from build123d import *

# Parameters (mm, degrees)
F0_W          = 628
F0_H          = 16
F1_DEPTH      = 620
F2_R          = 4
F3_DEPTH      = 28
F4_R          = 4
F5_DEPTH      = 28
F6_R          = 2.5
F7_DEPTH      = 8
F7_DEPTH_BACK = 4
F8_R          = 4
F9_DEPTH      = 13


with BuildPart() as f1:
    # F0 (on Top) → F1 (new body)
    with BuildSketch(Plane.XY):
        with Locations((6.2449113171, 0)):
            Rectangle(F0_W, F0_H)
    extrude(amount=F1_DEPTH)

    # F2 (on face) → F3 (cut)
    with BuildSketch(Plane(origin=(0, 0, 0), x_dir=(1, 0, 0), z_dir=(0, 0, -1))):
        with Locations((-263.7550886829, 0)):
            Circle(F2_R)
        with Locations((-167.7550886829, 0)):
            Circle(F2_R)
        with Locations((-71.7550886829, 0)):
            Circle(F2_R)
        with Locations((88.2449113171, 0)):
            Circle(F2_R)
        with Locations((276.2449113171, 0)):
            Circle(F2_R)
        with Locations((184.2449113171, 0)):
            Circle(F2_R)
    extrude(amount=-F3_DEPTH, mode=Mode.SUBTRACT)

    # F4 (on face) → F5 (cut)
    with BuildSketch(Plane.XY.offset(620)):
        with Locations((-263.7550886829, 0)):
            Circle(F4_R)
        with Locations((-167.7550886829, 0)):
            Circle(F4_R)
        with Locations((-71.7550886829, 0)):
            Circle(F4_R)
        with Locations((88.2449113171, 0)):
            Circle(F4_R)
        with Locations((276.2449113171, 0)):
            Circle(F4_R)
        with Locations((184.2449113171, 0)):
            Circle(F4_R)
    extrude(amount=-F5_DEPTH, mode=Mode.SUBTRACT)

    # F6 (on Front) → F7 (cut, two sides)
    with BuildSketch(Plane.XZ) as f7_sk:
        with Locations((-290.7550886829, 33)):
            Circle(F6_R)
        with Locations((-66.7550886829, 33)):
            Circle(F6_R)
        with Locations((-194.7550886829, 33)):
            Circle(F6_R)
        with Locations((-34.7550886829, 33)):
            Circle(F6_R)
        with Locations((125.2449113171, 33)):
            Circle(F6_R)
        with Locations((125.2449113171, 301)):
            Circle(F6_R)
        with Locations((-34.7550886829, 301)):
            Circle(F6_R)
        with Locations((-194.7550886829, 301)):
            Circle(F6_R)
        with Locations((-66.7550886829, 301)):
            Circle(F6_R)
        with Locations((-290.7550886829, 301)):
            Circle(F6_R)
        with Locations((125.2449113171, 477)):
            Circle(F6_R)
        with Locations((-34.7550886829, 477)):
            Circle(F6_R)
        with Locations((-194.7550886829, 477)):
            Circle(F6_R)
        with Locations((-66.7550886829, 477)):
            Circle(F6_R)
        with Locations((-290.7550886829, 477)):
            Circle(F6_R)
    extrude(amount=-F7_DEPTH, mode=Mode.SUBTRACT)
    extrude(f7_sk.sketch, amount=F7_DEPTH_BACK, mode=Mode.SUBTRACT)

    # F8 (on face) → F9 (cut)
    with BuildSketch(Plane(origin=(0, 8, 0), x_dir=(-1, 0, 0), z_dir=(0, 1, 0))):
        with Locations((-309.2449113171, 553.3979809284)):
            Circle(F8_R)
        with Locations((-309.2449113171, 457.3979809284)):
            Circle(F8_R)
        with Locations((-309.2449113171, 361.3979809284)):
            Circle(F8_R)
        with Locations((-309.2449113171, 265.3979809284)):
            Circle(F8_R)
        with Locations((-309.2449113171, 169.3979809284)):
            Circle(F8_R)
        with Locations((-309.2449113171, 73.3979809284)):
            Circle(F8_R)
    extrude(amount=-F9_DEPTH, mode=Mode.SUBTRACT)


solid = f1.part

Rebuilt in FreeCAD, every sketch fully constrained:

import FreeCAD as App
import Part
import Sketcher

V = App.Vector
Q = App.Units.Quantity


def add_polygon(sketch, points):
    """Adds a closed chain of lines whose ends are joined by coincident constraints."""
    first, n = sketch.GeometryCount, len(points)
    for a, b in zip(points, points[1:] + points[:1]):
        sketch.addGeometry(Part.LineSegment(App.Vector(*a, 0), App.Vector(*b, 0)), False)
    for i in range(n):
        sketch.addConstraint(Sketcher.Constraint("Coincident", first + i, 2, first + (i + 1) % n, 1))

doc = App.newDocument("Part")
params = doc.addObject("Spreadsheet::Sheet", "Params")
for row, (alias, value) in enumerate([
    ("sketch1_width", "628 mm"),
    ("sketch1_height", "16 mm"),
    ("pad1_length", "620 mm"),
    ("sketch2_diameter", "8 mm"),
    ("pocket1_length", "28 mm"),
    ("sketch3_diameter", "8 mm"),
    ("pocket2_length", "28 mm"),
    ("sketch4_diameter", "5 mm"),
    ("pocket3_length", "8 mm"),
    ("pocket3_length2", "4 mm"),
    ("sketch5_diameter", "8 mm"),
    ("pocket4_length", "13 mm"),
], start=1):
    params.set(f"A{row}", alias)
    params.set(f"B{row}", "=" + value)
    params.setAlias(f"B{row}", alias)

body = doc.addObject("PartDesign::Body", "Body")

# Sketch on XY plane
sketch1 = body.newObject("Sketcher::SketchObject", "Sketch")
sketch1.AttachmentSupport = (doc.getObject("XY_Plane"), [""])
sketch1.MapMode = "FlatFace"
add_polygon(sketch1, [(-307.755089, 8), (-307.755089, -8), (320.244911, -8), (320.244911, 8)])  # lines 0-3
sketch1.addConstraint([
    Sketcher.Constraint("Vertical", 0),
    Sketcher.Constraint("Horizontal", 1),
    Sketcher.Constraint("Vertical", 2),
    Sketcher.Constraint("Horizontal", 3),
    Sketcher.Constraint("DistanceX", 1, 1, 1, 2, Q("628 mm")),
    Sketcher.Constraint("DistanceY", 0, 2, 0, 1, Q("16 mm")),
    Sketcher.Constraint("DistanceY", 0, 2, -1, 1, Q("8 mm")),
    Sketcher.Constraint("DistanceX", 0, 2, -1, 1, Q("307.755089 mm")),
])
sketch1.setExpression("Constraints[8]", "Params.sketch1_width")
sketch1.setExpression("Constraints[9]", "Params.sketch1_height")
pad1 = body.newObject("PartDesign::Pad", "Pad")
pad1.Profile = sketch1
pad1.setExpression("Length", "Params.pad1_length")

# Sketch on XY plane
sketch2 = body.newObject("Sketcher::SketchObject", "Sketch001")
sketch2.AttachmentSupport = (doc.getObject("XY_Plane"), [""])
sketch2.MapMode = "FlatFace"
sketch2.addGeometry([
    Part.Circle(V(-263.755089, 0, 0), V(0, 0, 1), 4),  # 0
    Part.Circle(V(-167.755089, 0, 0), V(0, 0, 1), 4),  # 1
    Part.Circle(V(-71.755089, 0, 0), V(0, 0, 1), 4),  # 2
    Part.Circle(V(88.244911, 0, 0), V(0, 0, 1), 4),  # 3
    Part.Circle(V(276.244911, 0, 0), V(0, 0, 1), 4),  # 4
    Part.Circle(V(184.244911, 0, 0), V(0, 0, 1), 4),  # 5
], False)
sketch2.addConstraint([
    Sketcher.Constraint("Equal", 0, 1),
    Sketcher.Constraint("Equal", 1, 2),
    Sketcher.Constraint("Equal", 2, 3),
    Sketcher.Constraint("Equal", 3, 4),
    Sketcher.Constraint("Equal", 4, 5),
    Sketcher.Constraint("PointOnObject", 0, 3, -1),
    Sketcher.Constraint("PointOnObject", 1, 3, -1),
    Sketcher.Constraint("PointOnObject", 2, 3, -1),
    Sketcher.Constraint("PointOnObject", 3, 3, -1),
    Sketcher.Constraint("PointOnObject", 4, 3, -1),
    Sketcher.Constraint("PointOnObject", 5, 3, -1),
    Sketcher.Constraint("Diameter", 0, Q("8 mm")),
    Sketcher.Constraint("DistanceX", 0, 3, 1, 3, Q("96 mm")),
    Sketcher.Constraint("DistanceX", 1, 3, 2, 3, Q("96 mm")),
    Sketcher.Constraint("DistanceX", 2, 3, 3, 3, Q("160 mm")),
    Sketcher.Constraint("DistanceX", 3, 3, 4, 3, Q("188 mm")),
    Sketcher.Constraint("DistanceX", 5, 3, 4, 3, Q("92 mm")),
    Sketcher.Constraint("DistanceX", 0, 3, -1, 1, Q("263.755089 mm")),
])
sketch2.setExpression("Constraints[11]", "Params.sketch2_diameter")
pocket1 = body.newObject("PartDesign::Pocket", "Pocket")
pocket1.Profile = sketch2
pocket1.setExpression("Length", "Params.pocket1_length")
pocket1.Reversed = True

# Sketch on XY plane
sketch3 = body.newObject("Sketcher::SketchObject", "Sketch002")
sketch3.AttachmentSupport = (doc.getObject("XY_Plane"), [""])
sketch3.MapMode = "FlatFace"
sketch3.AttachmentOffset = App.Placement(V(0, 0, 620), App.Rotation())
sketch3.addGeometry([
    Part.Circle(V(-263.755089, 0, 0), V(0, 0, 1), 4),  # 0
    Part.Circle(V(-167.755089, 0, 0), V(0, 0, 1), 4),  # 1
    Part.Circle(V(-71.755089, 0, 0), V(0, 0, 1), 4),  # 2
    Part.Circle(V(88.244911, 0, 0), V(0, 0, 1), 4),  # 3
    Part.Circle(V(276.244911, 0, 0), V(0, 0, 1), 4),  # 4
    Part.Circle(V(184.244911, 0, 0), V(0, 0, 1), 4),  # 5
], False)
sketch3.addConstraint([
    Sketcher.Constraint("Equal", 0, 1),
    Sketcher.Constraint("Equal", 1, 2),
    Sketcher.Constraint("Equal", 2, 3),
    Sketcher.Constraint("Equal", 3, 4),
    Sketcher.Constraint("Equal", 4, 5),
    Sketcher.Constraint("PointOnObject", 0, 3, -1),
    Sketcher.Constraint("PointOnObject", 1, 3, -1),
    Sketcher.Constraint("PointOnObject", 2, 3, -1),
    Sketcher.Constraint("PointOnObject", 3, 3, -1),
    Sketcher.Constraint("PointOnObject", 4, 3, -1),
    Sketcher.Constraint("PointOnObject", 5, 3, -1),
    Sketcher.Constraint("Diameter", 0, Q("8 mm")),
    Sketcher.Constraint("DistanceX", 0, 3, 1, 3, Q("96 mm")),
    Sketcher.Constraint("DistanceX", 1, 3, 2, 3, Q("96 mm")),
    Sketcher.Constraint("DistanceX", 2, 3, 3, 3, Q("160 mm")),
    Sketcher.Constraint("DistanceX", 3, 3, 4, 3, Q("188 mm")),
    Sketcher.Constraint("DistanceX", 5, 3, 4, 3, Q("92 mm")),
    Sketcher.Constraint("DistanceX", 0, 3, -1, 1, Q("263.755089 mm")),
])
sketch3.setExpression("Constraints[11]", "Params.sketch3_diameter")
pocket2 = body.newObject("PartDesign::Pocket", "Pocket001")
pocket2.Profile = sketch3
pocket2.setExpression("Length", "Params.pocket2_length")

# Sketch on XZ plane
sketch4 = body.newObject("Sketcher::SketchObject", "Sketch003")
sketch4.AttachmentSupport = (doc.getObject("XZ_Plane"), [""])
sketch4.MapMode = "FlatFace"
sketch4.addGeometry([
    Part.Circle(V(-290.755089, 33, 0), V(0, 0, 1), 2.5),  # 0
    Part.Circle(V(-66.755089, 33, 0), V(0, 0, 1), 2.5),  # 1
    Part.Circle(V(-194.755089, 33, 0), V(0, 0, 1), 2.5),  # 2
    Part.Circle(V(-34.755089, 33, 0), V(0, 0, 1), 2.5),  # 3
    Part.Circle(V(125.244911, 33, 0), V(0, 0, 1), 2.5),  # 4
    Part.Circle(V(125.244911, 301, 0), V(0, 0, 1), 2.5),  # 5
    Part.Circle(V(-34.755089, 301, 0), V(0, 0, 1), 2.5),  # 6
    Part.Circle(V(-194.755089, 301, 0), V(0, 0, 1), 2.5),  # 7
    Part.Circle(V(-66.755089, 301, 0), V(0, 0, 1), 2.5),  # 8
    Part.Circle(V(-290.755089, 301, 0), V(0, 0, 1), 2.5),  # 9
    Part.Circle(V(125.244911, 477, 0), V(0, 0, 1), 2.5),  # 10
    Part.Circle(V(-34.755089, 477, 0), V(0, 0, 1), 2.5),  # 11
    Part.Circle(V(-194.755089, 477, 0), V(0, 0, 1), 2.5),  # 12
    Part.Circle(V(-66.755089, 477, 0), V(0, 0, 1), 2.5),  # 13
    Part.Circle(V(-290.755089, 477, 0), V(0, 0, 1), 2.5),  # 14
], False)
sketch4.addConstraint([
    Sketcher.Constraint("Equal", 0, 1),
    Sketcher.Constraint("Equal", 1, 2),
    Sketcher.Constraint("Equal", 2, 3),
    Sketcher.Constraint("Equal", 3, 4),
    Sketcher.Constraint("Equal", 4, 5),
    Sketcher.Constraint("Equal", 5, 6),
    Sketcher.Constraint("Equal", 6, 7),
    Sketcher.Constraint("Equal", 7, 8),
    Sketcher.Constraint("Equal", 8, 9),
    Sketcher.Constraint("Equal", 9, 10),
    Sketcher.Constraint("Equal", 10, 11),
    Sketcher.Constraint("Equal", 11, 12),
    Sketcher.Constraint("Equal", 12, 13),
    Sketcher.Constraint("Equal", 13, 14),
    Sketcher.Constraint("Horizontal", 0, 3, 1, 3),
    Sketcher.Constraint("Horizontal", 1, 3, 2, 3),
    Sketcher.Constraint("Horizontal", 2, 3, 3, 3),
    Sketcher.Constraint("Horizontal", 3, 3, 4, 3),
    Sketcher.Constraint("Horizontal", 5, 3, 6, 3),
    Sketcher.Constraint("Horizontal", 6, 3, 7, 3),
    Sketcher.Constraint("Horizontal", 7, 3, 8, 3),
    Sketcher.Constraint("Horizontal", 8, 3, 9, 3),
    Sketcher.Constraint("Horizontal", 10, 3, 11, 3),
    Sketcher.Constraint("Horizontal", 11, 3, 12, 3),
    Sketcher.Constraint("Horizontal", 12, 3, 13, 3),
    Sketcher.Constraint("Horizontal", 13, 3, 14, 3),
    Sketcher.Constraint("Vertical", 4, 3, 5, 3),
    Sketcher.Constraint("Vertical", 3, 3, 6, 3),
    Sketcher.Constraint("Vertical", 2, 3, 7, 3),
    Sketcher.Constraint("Vertical", 1, 3, 8, 3),
    Sketcher.Constraint("Vertical", 0, 3, 9, 3),
    Sketcher.Constraint("Vertical", 5, 3, 10, 3),
    Sketcher.Constraint("Vertical", 6, 3, 11, 3),
    Sketcher.Constraint("Vertical", 7, 3, 12, 3),
    Sketcher.Constraint("Vertical", 8, 3, 13, 3),
    Sketcher.Constraint("Vertical", 9, 3, 14, 3),
    Sketcher.Constraint("Diameter", 0, Q("5 mm")),
    Sketcher.Constraint("DistanceY", -1, 1, 0, 3, Q("33 mm")),
    Sketcher.Constraint("DistanceY", -1, 1, 5, 3, Q("301 mm")),
    Sketcher.Constraint("DistanceY", -1, 1, 10, 3, Q("477 mm")),
    Sketcher.Constraint("DistanceX", 0, 3, 1, 3, Q("224 mm")),
    Sketcher.Constraint("DistanceX", 0, 3, 2, 3, Q("96 mm")),
    Sketcher.Constraint("DistanceX", 1, 3, 3, 3, Q("32 mm")),
    Sketcher.Constraint("DistanceX", 3, 3, 4, 3, Q("160 mm")),
    Sketcher.Constraint("DistanceX", 0, 3, -1, 1, Q("290.755089 mm")),
])
sketch4.setExpression("Constraints[36]", "Params.sketch4_diameter")
pocket3 = body.newObject("PartDesign::Pocket", "Pocket002")
pocket3.Profile = sketch4
pocket3.Type = "TwoLengths"
pocket3.setExpression("Length", "Params.pocket3_length")
pocket3.setExpression("Length2", "Params.pocket3_length2")

# Sketch on XZ plane
sketch5 = body.newObject("Sketcher::SketchObject", "Sketch004")
sketch5.AttachmentSupport = (doc.getObject("XZ_Plane"), [""])
sketch5.MapMode = "FlatFace"
sketch5.AttachmentOffset = App.Placement(V(0, 0, -8), App.Rotation())
sketch5.addGeometry([
    Part.Circle(V(309.244911, 553.397981, 0), V(0, 0, 1), 4),  # 0
    Part.Circle(V(309.244911, 457.397981, 0), V(0, 0, 1), 4),  # 1
    Part.Circle(V(309.244911, 361.397981, 0), V(0, 0, 1), 4),  # 2
    Part.Circle(V(309.244911, 265.397981, 0), V(0, 0, 1), 4),  # 3
    Part.Circle(V(309.244911, 169.397981, 0), V(0, 0, 1), 4),  # 4
    Part.Circle(V(309.244911, 73.397981, 0), V(0, 0, 1), 4),  # 5
], False)
sketch5.addConstraint([
    Sketcher.Constraint("Equal", 0, 1),
    Sketcher.Constraint("Equal", 1, 2),
    Sketcher.Constraint("Equal", 2, 3),
    Sketcher.Constraint("Equal", 3, 4),
    Sketcher.Constraint("Equal", 4, 5),
    Sketcher.Constraint("Vertical", 0, 3, 1, 3),
    Sketcher.Constraint("Vertical", 1, 3, 2, 3),
    Sketcher.Constraint("Vertical", 2, 3, 3, 3),
    Sketcher.Constraint("Vertical", 3, 3, 4, 3),
    Sketcher.Constraint("Vertical", 4, 3, 5, 3),
    Sketcher.Constraint("Diameter", 0, Q("8 mm")),
    Sketcher.Constraint("DistanceY", 1, 3, 0, 3, Q("96 mm")),
    Sketcher.Constraint("DistanceY", 2, 3, 1, 3, Q("96 mm")),
    Sketcher.Constraint("DistanceY", 3, 3, 2, 3, Q("96 mm")),
    Sketcher.Constraint("DistanceY", 4, 3, 3, 3, Q("96 mm")),
    Sketcher.Constraint("DistanceY", 5, 3, 4, 3, Q("96 mm")),
    Sketcher.Constraint("DistanceX", -1, 1, 0, 3, Q("309.244911 mm")),
    Sketcher.Constraint("DistanceY", -1, 1, 0, 3, Q("553.397981 mm")),
])
sketch5.setExpression("Constraints[10]", "Params.sketch5_diameter")
pocket4 = body.newObject("PartDesign::Pocket", "Pocket003")
pocket4.Profile = sketch5
pocket4.setExpression("Length", "Params.pocket4_length")
pocket4.Reversed = True

doc.recompute()
